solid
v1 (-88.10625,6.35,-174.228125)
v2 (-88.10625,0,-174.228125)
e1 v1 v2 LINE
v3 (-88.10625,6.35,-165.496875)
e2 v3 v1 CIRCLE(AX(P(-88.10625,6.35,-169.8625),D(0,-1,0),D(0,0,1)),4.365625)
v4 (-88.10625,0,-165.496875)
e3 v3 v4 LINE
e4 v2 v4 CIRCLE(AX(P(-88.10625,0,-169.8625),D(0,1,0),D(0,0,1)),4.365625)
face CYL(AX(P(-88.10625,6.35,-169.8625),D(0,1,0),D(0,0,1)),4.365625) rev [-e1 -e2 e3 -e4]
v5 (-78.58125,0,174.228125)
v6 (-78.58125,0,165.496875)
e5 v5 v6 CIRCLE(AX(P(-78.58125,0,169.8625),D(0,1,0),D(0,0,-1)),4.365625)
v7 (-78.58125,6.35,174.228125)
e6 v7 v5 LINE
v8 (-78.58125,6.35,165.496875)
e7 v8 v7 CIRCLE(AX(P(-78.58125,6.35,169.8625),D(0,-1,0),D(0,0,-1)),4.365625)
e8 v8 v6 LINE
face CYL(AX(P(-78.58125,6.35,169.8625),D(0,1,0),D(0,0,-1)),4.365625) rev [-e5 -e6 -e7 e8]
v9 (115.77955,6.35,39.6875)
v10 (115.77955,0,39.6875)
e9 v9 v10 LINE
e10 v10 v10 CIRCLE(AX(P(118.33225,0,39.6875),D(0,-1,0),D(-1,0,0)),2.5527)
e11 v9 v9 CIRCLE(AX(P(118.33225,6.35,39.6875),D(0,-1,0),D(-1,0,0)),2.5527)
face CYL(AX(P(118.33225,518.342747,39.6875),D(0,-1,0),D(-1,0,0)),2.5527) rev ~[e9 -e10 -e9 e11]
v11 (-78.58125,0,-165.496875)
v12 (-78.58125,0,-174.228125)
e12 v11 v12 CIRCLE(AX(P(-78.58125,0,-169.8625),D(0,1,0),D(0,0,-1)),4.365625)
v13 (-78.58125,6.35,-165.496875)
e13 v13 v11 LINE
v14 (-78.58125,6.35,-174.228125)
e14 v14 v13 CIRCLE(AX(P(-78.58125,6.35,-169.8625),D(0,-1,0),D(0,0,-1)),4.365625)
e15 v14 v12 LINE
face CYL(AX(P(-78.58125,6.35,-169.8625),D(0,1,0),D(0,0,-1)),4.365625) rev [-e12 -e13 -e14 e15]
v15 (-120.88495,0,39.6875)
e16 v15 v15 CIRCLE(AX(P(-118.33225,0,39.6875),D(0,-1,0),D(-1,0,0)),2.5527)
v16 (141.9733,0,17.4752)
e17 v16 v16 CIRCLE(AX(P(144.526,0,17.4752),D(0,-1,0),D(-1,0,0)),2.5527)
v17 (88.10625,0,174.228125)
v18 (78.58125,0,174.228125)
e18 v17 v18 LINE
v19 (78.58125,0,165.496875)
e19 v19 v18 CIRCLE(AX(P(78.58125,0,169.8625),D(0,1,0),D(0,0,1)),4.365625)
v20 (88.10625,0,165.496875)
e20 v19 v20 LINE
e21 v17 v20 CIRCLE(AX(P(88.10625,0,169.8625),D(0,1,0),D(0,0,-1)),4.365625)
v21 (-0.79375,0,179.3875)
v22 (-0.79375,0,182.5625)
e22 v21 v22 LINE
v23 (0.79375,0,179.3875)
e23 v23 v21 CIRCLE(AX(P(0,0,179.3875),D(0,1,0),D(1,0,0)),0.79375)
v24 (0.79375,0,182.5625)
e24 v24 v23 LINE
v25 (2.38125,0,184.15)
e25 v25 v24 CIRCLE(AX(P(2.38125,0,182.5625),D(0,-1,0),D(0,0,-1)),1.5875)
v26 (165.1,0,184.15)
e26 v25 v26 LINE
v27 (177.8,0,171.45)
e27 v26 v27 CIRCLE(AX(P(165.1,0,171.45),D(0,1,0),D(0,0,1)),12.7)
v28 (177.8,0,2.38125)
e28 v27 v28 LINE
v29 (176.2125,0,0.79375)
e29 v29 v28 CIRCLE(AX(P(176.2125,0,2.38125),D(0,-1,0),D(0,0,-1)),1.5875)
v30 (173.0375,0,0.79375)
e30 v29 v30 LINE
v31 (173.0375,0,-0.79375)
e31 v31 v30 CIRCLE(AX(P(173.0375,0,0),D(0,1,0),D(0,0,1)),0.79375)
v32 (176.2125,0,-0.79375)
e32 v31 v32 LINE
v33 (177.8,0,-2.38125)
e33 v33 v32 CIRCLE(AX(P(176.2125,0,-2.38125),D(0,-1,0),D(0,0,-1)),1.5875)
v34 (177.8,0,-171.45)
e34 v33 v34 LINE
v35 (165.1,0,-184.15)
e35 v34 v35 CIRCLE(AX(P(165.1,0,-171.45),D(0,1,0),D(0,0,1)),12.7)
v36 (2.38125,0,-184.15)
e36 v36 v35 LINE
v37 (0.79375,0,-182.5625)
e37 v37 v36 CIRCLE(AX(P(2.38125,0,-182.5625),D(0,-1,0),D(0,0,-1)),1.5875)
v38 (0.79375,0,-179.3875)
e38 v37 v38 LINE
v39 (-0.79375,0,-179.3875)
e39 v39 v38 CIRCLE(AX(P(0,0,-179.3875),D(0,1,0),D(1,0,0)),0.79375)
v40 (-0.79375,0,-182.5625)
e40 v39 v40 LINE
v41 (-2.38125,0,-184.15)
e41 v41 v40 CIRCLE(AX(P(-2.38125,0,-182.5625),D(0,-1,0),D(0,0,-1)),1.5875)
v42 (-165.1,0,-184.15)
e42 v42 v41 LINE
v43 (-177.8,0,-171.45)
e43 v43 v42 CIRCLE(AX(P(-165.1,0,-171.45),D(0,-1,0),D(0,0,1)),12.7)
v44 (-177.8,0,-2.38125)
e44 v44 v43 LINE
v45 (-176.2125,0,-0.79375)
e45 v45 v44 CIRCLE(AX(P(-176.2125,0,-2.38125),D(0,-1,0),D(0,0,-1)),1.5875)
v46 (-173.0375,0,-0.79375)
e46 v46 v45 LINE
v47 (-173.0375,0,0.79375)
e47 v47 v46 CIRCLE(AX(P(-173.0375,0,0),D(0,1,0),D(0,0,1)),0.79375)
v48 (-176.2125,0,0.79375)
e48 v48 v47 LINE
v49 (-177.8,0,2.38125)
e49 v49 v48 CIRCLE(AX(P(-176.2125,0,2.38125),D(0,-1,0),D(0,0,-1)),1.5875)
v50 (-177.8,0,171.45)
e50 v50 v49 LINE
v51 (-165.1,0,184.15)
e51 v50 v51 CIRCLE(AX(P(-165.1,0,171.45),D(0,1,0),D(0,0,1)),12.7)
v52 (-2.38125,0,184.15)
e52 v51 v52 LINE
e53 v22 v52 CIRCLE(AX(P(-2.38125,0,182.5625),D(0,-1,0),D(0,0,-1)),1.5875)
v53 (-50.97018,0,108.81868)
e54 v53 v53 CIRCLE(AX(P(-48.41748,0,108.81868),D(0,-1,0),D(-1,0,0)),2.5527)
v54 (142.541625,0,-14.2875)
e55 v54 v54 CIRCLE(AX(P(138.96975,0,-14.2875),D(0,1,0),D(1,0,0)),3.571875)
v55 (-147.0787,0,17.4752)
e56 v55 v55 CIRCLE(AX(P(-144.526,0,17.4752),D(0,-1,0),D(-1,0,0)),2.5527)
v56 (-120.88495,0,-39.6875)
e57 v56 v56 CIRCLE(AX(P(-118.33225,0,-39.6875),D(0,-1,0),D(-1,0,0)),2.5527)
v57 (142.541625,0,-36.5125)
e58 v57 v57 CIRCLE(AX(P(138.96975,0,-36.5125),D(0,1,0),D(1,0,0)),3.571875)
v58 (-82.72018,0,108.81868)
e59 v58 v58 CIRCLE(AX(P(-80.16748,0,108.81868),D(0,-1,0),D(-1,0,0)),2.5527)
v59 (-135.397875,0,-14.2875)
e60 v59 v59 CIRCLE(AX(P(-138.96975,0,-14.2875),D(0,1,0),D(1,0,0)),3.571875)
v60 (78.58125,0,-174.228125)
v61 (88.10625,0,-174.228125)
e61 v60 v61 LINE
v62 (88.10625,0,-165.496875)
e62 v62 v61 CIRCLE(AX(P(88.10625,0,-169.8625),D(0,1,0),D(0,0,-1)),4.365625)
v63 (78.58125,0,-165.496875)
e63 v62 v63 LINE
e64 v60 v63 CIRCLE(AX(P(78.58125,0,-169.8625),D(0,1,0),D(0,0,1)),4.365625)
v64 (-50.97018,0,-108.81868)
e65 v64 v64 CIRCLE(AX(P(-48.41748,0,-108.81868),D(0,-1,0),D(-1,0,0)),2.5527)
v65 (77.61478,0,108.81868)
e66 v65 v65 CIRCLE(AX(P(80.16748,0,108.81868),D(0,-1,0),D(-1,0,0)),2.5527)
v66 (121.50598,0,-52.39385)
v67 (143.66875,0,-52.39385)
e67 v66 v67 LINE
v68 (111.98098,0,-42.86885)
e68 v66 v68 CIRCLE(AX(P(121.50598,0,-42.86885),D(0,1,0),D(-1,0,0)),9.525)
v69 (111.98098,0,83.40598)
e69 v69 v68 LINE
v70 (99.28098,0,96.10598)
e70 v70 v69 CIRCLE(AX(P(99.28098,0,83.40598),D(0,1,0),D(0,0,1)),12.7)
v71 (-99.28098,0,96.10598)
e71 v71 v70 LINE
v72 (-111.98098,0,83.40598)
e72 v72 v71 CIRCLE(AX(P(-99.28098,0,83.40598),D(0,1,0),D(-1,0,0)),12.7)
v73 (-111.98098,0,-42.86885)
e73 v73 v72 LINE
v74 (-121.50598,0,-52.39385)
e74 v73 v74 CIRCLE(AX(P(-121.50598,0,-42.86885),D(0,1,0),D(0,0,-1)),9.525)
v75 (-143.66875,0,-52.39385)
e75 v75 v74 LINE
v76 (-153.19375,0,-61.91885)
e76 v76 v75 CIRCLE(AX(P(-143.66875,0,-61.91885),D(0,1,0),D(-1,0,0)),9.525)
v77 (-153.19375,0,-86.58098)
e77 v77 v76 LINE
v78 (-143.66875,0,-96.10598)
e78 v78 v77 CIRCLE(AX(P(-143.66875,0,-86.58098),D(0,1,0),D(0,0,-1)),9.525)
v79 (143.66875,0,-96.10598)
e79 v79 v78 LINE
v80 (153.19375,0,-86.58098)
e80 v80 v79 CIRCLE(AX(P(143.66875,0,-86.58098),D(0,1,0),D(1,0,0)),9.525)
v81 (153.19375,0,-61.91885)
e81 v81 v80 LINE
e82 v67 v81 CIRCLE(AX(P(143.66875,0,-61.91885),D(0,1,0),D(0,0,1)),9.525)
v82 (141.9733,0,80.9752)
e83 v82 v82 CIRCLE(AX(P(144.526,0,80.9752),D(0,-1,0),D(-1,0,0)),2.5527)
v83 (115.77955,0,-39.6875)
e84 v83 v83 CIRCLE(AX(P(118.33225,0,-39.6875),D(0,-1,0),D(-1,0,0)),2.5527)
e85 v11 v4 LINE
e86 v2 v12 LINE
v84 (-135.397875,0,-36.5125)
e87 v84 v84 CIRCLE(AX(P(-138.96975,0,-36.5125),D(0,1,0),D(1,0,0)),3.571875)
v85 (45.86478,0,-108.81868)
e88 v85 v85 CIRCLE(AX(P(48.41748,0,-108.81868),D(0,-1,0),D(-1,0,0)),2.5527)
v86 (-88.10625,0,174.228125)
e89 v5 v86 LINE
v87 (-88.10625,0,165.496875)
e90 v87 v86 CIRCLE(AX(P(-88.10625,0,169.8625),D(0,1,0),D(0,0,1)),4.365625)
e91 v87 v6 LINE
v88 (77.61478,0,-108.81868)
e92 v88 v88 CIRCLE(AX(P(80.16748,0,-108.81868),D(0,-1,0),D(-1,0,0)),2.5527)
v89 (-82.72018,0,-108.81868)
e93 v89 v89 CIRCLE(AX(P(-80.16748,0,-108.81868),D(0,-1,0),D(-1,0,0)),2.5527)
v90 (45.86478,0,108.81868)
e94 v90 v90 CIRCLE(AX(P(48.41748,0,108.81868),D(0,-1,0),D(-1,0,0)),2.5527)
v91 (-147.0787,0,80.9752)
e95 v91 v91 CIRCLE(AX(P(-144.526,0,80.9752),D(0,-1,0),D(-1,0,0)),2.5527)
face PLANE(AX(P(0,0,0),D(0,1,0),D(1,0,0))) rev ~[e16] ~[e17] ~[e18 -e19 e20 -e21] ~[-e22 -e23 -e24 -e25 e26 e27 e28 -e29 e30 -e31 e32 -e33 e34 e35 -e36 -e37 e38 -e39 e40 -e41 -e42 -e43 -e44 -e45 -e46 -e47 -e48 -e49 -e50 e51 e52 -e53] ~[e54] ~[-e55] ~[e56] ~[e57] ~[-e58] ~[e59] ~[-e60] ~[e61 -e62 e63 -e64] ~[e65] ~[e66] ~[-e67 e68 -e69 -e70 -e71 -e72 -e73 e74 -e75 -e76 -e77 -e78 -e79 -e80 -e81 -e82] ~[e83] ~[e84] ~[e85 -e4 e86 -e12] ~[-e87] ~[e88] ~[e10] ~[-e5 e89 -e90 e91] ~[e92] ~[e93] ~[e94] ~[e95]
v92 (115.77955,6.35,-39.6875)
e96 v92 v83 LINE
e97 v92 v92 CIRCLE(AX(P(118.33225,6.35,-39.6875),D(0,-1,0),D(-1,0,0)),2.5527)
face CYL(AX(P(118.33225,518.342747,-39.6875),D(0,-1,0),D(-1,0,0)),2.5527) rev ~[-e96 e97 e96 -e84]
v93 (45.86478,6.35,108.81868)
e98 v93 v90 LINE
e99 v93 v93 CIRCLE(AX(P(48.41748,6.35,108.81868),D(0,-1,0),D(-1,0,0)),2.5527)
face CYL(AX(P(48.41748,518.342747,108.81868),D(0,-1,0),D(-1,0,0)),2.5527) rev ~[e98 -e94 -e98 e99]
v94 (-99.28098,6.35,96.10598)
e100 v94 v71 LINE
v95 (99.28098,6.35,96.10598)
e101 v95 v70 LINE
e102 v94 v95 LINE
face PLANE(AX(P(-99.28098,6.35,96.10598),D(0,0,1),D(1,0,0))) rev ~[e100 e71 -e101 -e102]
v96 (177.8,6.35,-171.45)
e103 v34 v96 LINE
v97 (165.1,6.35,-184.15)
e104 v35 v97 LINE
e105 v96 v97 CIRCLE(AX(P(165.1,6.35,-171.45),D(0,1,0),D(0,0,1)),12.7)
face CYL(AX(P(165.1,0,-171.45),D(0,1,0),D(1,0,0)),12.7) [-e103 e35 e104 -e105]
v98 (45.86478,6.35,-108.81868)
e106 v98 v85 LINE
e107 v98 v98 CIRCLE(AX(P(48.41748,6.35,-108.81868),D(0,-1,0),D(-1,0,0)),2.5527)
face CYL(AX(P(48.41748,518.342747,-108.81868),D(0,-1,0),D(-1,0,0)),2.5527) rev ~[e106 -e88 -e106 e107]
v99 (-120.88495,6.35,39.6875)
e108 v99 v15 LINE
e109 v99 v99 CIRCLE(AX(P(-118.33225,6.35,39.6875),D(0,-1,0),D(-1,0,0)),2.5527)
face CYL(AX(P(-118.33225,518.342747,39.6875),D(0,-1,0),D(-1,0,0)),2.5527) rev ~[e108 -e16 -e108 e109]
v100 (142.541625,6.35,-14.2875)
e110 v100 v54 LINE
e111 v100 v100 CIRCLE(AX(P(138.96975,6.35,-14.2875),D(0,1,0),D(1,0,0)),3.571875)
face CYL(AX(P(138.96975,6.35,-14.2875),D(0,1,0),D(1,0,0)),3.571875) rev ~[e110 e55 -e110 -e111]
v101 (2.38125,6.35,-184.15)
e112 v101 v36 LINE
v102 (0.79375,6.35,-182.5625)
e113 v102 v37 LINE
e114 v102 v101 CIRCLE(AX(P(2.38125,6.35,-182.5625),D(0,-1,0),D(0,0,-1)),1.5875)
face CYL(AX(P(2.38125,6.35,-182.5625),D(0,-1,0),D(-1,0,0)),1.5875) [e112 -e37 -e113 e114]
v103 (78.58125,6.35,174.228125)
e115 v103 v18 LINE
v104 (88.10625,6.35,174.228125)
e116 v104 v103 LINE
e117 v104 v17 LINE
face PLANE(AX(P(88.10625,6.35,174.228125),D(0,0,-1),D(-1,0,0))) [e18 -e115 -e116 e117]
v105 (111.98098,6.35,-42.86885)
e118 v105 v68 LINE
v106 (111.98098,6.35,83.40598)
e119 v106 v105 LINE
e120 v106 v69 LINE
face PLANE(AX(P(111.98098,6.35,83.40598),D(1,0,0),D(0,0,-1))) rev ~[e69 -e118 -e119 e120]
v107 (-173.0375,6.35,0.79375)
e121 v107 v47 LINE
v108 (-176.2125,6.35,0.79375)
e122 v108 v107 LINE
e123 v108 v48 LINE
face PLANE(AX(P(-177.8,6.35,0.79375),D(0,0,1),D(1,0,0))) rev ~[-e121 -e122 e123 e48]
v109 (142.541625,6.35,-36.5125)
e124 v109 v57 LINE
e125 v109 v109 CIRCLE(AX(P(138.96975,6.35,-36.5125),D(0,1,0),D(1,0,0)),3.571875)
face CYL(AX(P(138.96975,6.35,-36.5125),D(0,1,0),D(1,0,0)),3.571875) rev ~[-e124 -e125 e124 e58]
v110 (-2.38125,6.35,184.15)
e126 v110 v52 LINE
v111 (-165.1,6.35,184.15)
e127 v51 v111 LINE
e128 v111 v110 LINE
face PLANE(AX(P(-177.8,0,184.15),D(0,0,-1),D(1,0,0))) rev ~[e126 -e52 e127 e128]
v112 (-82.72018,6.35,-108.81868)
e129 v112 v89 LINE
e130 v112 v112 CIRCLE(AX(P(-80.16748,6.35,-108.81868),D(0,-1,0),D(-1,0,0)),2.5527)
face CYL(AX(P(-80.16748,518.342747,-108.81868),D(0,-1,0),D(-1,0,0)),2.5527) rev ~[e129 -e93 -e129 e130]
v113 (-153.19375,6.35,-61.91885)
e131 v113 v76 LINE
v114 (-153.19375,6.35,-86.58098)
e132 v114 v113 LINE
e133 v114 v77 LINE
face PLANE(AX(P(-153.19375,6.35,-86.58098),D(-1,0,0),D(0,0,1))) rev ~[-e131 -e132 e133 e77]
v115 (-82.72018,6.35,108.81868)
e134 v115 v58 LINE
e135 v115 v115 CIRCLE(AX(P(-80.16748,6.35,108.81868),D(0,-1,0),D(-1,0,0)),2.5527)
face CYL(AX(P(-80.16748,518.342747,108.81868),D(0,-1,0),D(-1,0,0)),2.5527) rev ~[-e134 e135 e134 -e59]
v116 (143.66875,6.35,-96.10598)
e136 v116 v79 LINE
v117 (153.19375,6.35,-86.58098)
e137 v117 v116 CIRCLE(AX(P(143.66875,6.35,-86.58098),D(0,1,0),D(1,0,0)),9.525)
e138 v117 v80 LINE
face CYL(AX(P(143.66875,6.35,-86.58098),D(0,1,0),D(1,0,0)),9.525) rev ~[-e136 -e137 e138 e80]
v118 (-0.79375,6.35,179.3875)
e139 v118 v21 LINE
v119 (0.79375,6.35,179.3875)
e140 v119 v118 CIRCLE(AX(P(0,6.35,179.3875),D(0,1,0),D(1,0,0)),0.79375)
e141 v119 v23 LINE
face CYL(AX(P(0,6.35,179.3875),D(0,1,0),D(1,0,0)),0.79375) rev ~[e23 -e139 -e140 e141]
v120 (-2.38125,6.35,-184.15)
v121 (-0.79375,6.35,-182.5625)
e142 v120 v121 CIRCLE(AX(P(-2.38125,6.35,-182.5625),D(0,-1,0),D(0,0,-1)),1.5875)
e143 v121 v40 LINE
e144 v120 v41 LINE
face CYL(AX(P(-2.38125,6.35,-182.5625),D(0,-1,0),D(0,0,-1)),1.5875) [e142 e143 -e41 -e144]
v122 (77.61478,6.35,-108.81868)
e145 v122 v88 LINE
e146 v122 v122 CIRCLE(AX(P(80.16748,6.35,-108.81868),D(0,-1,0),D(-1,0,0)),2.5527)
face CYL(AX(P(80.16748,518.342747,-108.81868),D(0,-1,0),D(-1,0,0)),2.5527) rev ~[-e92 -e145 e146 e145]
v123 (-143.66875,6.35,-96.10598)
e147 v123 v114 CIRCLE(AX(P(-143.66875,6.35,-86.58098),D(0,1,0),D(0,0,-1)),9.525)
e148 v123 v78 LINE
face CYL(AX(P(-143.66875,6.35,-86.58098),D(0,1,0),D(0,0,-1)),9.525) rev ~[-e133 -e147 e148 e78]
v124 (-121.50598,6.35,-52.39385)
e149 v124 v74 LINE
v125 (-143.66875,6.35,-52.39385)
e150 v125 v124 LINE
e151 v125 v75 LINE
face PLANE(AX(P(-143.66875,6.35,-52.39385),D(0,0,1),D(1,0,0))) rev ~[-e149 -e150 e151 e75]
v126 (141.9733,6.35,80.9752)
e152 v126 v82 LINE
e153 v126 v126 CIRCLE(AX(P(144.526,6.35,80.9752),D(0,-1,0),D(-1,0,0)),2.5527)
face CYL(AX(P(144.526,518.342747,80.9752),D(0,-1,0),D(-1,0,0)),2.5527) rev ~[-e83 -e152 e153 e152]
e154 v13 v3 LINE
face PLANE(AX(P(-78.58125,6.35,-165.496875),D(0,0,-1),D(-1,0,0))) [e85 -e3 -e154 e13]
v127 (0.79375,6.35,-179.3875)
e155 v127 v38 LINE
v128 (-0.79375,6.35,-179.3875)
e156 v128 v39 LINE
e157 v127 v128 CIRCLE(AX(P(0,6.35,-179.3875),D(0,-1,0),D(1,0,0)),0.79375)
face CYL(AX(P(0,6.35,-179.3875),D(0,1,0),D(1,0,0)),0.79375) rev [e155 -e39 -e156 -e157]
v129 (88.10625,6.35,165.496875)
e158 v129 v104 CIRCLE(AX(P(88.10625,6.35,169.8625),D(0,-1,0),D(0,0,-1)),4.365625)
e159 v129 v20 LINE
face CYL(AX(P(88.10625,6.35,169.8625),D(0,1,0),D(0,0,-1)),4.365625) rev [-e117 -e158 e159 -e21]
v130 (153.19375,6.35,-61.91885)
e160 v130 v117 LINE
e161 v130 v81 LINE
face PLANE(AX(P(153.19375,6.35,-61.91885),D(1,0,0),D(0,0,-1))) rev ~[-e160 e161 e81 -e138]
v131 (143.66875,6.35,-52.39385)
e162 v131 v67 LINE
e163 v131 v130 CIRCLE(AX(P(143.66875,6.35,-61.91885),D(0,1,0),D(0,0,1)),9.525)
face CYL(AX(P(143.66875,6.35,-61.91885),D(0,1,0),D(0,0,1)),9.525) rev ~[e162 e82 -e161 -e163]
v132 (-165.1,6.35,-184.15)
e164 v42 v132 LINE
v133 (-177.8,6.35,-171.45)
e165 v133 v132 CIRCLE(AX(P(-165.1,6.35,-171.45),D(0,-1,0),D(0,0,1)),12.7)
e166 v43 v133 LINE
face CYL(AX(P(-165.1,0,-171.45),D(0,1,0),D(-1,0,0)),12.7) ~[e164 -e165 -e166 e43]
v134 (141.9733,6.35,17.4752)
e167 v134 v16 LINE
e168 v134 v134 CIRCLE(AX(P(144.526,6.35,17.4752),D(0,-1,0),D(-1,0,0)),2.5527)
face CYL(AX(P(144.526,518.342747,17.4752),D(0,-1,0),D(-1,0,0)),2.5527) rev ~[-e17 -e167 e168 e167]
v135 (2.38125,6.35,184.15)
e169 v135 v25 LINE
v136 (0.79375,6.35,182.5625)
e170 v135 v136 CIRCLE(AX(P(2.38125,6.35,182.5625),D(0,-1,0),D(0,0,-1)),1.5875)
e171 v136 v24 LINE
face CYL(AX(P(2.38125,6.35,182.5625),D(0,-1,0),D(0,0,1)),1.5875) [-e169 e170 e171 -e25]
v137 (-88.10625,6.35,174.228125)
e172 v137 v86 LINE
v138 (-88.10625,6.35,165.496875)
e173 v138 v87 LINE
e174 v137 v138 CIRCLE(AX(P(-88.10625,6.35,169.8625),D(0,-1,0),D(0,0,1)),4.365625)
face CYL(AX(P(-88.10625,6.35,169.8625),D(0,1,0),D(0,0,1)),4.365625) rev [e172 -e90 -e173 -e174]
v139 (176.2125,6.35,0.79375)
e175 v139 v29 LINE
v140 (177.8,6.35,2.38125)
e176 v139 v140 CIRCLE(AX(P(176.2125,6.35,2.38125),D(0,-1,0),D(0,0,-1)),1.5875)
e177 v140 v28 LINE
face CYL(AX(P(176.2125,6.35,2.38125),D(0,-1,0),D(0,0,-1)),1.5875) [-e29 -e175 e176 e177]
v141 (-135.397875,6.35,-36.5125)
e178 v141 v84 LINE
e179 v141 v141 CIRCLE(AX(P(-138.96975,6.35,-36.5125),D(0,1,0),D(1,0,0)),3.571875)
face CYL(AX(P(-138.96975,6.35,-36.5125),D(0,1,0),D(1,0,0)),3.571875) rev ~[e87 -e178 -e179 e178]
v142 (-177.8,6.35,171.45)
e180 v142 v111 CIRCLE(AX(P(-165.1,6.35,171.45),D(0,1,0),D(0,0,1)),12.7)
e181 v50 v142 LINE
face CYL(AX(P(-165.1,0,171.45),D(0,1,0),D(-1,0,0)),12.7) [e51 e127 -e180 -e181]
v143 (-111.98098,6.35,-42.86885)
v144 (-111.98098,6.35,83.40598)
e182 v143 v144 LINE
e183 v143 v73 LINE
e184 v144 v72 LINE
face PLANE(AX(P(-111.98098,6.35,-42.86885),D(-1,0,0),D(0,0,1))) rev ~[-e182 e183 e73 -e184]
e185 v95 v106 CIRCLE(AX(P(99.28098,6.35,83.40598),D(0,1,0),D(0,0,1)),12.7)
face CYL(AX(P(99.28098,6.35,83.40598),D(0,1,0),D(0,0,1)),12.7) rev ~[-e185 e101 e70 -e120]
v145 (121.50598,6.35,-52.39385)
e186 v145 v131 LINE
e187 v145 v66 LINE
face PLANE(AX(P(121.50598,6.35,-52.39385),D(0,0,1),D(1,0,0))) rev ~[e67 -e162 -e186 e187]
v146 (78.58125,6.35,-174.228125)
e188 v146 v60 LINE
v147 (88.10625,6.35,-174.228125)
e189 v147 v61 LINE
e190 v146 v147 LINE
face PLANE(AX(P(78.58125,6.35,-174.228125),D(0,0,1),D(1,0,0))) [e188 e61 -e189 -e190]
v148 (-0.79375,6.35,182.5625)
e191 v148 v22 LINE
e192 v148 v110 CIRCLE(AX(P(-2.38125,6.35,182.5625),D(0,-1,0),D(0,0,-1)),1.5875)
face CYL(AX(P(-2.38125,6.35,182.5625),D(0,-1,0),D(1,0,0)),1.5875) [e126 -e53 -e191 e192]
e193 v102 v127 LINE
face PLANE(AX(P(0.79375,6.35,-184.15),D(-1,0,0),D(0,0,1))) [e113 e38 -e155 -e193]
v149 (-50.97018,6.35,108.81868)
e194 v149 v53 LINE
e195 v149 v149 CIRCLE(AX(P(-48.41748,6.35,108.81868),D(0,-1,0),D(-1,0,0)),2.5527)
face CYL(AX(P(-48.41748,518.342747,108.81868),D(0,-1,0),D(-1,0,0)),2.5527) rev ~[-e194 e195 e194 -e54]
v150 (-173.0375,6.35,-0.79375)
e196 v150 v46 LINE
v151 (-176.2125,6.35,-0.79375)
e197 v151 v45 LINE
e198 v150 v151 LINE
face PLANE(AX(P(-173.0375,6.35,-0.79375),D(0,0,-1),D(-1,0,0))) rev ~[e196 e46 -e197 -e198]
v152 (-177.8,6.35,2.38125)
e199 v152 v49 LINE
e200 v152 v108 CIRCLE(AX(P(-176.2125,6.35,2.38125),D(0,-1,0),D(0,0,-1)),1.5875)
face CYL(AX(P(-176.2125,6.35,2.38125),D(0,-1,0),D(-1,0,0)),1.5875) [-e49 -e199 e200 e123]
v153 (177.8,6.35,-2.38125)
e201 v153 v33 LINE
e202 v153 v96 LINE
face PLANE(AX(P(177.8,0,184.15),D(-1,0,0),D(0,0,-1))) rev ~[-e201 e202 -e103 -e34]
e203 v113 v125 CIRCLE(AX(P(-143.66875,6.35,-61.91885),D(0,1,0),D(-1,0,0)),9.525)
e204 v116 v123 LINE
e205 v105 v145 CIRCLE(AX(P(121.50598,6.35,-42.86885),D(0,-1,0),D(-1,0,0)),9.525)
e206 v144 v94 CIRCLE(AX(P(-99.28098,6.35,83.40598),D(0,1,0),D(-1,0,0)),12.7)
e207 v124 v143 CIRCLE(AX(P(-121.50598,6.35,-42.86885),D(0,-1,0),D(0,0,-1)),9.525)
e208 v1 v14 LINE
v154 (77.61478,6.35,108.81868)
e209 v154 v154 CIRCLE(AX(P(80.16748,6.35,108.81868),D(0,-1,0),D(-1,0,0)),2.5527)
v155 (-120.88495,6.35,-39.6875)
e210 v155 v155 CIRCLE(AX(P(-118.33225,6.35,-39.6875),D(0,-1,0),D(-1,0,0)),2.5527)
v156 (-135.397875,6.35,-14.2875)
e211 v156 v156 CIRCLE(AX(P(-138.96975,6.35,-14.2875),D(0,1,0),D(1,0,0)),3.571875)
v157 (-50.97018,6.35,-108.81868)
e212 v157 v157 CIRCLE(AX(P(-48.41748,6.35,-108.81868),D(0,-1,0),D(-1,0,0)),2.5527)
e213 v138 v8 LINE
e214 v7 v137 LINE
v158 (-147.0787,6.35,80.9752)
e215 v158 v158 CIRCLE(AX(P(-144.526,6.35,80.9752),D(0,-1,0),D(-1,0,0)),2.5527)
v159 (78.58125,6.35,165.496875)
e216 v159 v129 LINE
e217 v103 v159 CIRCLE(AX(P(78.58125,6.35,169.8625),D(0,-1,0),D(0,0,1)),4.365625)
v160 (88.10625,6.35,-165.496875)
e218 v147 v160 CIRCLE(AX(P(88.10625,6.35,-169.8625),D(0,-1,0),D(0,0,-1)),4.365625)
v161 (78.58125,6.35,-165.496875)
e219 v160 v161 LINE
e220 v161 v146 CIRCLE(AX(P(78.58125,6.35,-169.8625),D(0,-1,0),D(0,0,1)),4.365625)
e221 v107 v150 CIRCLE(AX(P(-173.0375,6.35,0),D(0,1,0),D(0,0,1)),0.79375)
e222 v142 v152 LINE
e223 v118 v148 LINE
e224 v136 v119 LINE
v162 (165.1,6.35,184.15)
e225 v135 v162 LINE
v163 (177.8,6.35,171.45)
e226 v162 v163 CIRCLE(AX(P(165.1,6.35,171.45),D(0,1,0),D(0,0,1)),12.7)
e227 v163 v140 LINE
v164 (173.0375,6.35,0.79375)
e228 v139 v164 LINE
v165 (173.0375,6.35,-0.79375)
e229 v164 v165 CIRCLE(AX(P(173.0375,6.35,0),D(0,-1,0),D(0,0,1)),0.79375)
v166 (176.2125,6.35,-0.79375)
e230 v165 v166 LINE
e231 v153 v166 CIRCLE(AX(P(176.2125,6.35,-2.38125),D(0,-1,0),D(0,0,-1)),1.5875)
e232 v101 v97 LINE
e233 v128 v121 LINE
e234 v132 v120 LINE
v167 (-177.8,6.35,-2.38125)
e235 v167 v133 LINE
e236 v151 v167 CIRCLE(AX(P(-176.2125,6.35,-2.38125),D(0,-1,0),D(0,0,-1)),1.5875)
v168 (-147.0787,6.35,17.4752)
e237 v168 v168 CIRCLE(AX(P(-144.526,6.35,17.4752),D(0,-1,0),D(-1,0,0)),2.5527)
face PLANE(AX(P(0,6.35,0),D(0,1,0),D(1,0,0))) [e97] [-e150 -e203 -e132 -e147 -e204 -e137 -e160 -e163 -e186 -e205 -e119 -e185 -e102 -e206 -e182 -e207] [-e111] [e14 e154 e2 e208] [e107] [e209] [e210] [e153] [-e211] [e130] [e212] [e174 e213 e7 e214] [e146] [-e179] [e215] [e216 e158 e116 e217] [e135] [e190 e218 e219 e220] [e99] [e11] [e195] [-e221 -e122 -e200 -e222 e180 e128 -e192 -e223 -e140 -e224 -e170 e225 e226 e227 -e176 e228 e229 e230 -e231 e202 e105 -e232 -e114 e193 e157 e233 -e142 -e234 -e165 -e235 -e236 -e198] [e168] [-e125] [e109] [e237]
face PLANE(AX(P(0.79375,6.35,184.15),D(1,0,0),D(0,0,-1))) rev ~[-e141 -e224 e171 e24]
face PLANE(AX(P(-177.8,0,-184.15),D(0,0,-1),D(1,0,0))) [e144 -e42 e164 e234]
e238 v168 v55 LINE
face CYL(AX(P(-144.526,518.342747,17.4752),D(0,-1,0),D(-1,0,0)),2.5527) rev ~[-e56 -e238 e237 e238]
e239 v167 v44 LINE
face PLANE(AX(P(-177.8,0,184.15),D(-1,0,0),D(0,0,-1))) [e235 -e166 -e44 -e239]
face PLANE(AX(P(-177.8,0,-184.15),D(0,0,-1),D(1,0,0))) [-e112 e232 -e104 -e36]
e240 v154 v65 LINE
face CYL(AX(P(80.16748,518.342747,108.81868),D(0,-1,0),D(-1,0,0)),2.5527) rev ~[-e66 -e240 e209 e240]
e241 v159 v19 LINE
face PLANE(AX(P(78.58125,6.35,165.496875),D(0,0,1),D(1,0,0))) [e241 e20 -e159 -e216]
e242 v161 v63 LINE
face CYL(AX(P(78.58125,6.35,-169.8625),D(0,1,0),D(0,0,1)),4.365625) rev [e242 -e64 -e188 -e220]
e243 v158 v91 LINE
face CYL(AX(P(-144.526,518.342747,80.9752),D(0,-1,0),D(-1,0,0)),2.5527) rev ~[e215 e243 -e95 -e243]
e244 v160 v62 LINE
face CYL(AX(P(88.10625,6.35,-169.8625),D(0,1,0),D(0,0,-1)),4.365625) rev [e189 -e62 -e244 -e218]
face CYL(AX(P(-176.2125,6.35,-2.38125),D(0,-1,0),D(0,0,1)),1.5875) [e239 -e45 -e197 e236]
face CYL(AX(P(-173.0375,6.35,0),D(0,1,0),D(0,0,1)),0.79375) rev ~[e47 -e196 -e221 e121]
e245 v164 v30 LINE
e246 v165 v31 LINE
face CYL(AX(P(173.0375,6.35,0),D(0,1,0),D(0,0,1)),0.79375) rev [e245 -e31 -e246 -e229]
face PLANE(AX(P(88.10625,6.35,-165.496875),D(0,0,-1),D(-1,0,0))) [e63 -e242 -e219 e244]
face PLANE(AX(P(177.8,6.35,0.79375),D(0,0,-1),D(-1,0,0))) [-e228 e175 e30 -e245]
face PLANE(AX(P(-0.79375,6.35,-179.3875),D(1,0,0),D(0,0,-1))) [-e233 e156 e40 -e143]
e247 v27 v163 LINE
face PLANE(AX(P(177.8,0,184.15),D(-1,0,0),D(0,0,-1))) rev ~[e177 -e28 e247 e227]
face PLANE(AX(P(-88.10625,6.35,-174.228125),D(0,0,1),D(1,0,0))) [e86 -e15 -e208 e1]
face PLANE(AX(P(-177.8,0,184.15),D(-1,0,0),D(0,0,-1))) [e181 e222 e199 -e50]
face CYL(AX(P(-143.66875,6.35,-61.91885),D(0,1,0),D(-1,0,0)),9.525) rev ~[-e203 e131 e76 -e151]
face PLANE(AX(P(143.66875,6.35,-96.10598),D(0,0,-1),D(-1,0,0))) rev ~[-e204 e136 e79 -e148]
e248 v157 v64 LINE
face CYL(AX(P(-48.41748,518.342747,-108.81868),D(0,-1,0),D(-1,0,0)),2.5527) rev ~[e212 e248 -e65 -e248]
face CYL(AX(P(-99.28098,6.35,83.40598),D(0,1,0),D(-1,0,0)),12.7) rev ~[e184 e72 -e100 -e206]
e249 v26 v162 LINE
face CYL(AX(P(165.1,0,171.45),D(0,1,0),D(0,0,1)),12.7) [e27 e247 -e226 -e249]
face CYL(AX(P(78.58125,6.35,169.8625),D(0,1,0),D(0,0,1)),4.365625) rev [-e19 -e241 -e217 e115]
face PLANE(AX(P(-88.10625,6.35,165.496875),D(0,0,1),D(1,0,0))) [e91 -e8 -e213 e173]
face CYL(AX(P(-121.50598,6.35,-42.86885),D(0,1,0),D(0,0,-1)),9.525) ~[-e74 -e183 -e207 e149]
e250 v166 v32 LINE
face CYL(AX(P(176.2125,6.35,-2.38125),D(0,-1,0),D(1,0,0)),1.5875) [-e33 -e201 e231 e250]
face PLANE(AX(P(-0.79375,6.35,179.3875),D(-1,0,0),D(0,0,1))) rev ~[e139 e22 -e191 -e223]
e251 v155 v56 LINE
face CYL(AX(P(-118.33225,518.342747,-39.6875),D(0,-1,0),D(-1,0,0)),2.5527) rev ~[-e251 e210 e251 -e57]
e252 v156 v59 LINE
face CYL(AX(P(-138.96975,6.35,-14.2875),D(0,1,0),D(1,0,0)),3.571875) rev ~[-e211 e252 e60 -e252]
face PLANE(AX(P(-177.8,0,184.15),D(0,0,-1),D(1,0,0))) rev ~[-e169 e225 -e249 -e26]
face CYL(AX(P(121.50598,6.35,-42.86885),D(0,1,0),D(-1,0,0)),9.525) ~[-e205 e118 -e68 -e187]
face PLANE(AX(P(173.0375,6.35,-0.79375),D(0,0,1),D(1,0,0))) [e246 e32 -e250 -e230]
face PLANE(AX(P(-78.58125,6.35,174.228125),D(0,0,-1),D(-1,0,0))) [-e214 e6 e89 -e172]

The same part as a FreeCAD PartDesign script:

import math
import FreeCAD as App
import Part
import Sketcher
Q = App.Units.Quantity


def edges_at(feature, points):
    """Names of the edges that pass closest to the given points."""
    edges = feature.Shape.Edges
    near = lambda p: min(range(len(edges)), key=lambda i: edges[i].distToShape(Part.Vertex(*p))[0])
    return sorted({f"Edge{near(p) + 1}" for p in points})


def add_polygon(sketch, points):
    """Adds a closed chain of lines whose ends are joined by coincident constraints."""
    first, n = sketch.GeometryCount, len(points)
    for a, b in zip(points, points[1:] + points[:1]):
        sketch.addGeometry(Part.LineSegment(App.Vector(*a, 0), App.Vector(*b, 0)), False)
    for i in range(n):
        sketch.addConstraint(Sketcher.Constraint("Coincident", first + i, 2, first + (i + 1) % n, 1))

doc = App.newDocument("Part")
body = doc.addObject("PartDesign::Body", "Body")

sketch1 = doc.addObject("Sketcher::SketchObject", "Sketch")
body.addObject(sketch1)
sketch1.AttachmentSupport = (doc.XZ_Plane, [""])
sketch1.MapMode = "FlatFace"
add_polygon(sketch1, [(-177.8, -184.15), (-177.8, 184.15), (177.8, 184.15), (177.8, -184.15)])
sketch1.addConstraint([
    Sketcher.Constraint("Vertical", 0),
    Sketcher.Constraint("Horizontal", 1),
    Sketcher.Constraint("Vertical", 2),
    Sketcher.Constraint("Horizontal", 3),
    Sketcher.Constraint("Symmetric", 0, 2, 2, 2, -1, 1),
    Sketcher.Constraint("DistanceX", 1, 1, 1, 2, Q("14 in")),
    Sketcher.Constraint("DistanceY", 0, 1, 0, 2, Q("14.5 in")),
])
pad1 = doc.addObject("PartDesign::Pad", "Pad")
body.addObject(pad1)
pad1.Profile = sketch1
pad1.Length = Q("0.25 in")
pad1.Reversed = True
doc.recompute()

fillet = doc.addObject("PartDesign::Fillet", "Fillet")
body.addObject(fillet)
fillet.Base = (pad1, edges_at(pad1, [
    (177.8, 3.175, 184.15),
    (-177.8, 3.175, 184.15),
    (-177.8, 3.175, -184.15),
    (177.8, 3.175, -184.15),
]))
fillet.Radius = Q("0.5 in")

sketch2 = doc.addObject("Sketcher::SketchObject", "Sketch001")
body.addObject(sketch2)
sketch2.AttachmentSupport = (doc.XZ_Plane, [""])
sketch2.MapMode = "FlatFace"
sketch2.AttachmentOffset = App.Placement(App.Vector(0, 0, -0.25 * 25.4), App.Rotation())
sketch2.addGeometry([
    Part.LineSegment(App.Vector(-78.58125, -174.228125, 0), App.Vector(-88.10625, -174.228125, 0)),
    Part.ArcOfCircle(Part.Circle(App.Vector(-88.10625, -169.8625, 0), App.Vector(0, 0, 1), 4.365625), math.radians(90), math.radians(270)),
    Part.LineSegment(App.Vector(-88.10625, -165.496875, 0), App.Vector(-78.58125, -165.496875, 0)),
    Part.ArcOfCircle(Part.Circle(App.Vector(-78.58125, -169.8625, 0), App.Vector(0, 0, 1), 4.365625), math.radians(-90), math.radians(90)),
    Part.LineSegment(App.Vector(78.58125, -165.496875, 0), App.Vector(88.10625, -165.496875, 0)),
    Part.ArcOfCircle(Part.Circle(App.Vector(88.10625, -169.8625, 0), App.Vector(0, 0, 1), 4.365625), math.radians(-90), math.radians(90)),
    Part.LineSegment(App.Vector(88.10625, -174.228125, 0), App.Vector(78.58125, -174.228125, 0)),
    Part.ArcOfCircle(Part.Circle(App.Vector(78.58125, -169.8625, 0), App.Vector(0, 0, 1), 4.365625), math.radians(90), math.radians(270)),
    Part.LineSegment(App.Vector(-78.58125, 165.496875, 0), App.Vector(-88.10625, 165.496875, 0)),
    Part.ArcOfCircle(Part.Circle(App.Vector(-88.10625, 169.8625, 0), App.Vector(0, 0, 1), 4.365625), math.radians(90), math.radians(270)),
    Part.LineSegment(App.Vector(-88.10625, 174.228125, 0), App.Vector(-78.58125, 174.228125, 0)),
    Part.ArcOfCircle(Part.Circle(App.Vector(-78.58125, 169.8625, 0), App.Vector(0, 0, 1), 4.365625), math.radians(-90), math.radians(90)),
    Part.LineSegment(App.Vector(88.10625, 165.496875, 0), App.Vector(78.58125, 165.496875, 0)),
    Part.ArcOfCircle(Part.Circle(App.Vector(78.58125, 169.8625, 0), App.Vector(0, 0, 1), 4.365625), math.radians(90), math.radians(270)),
    Part.LineSegment(App.Vector(78.58125, 174.228125, 0), App.Vector(88.10625, 174.228125, 0)),
    Part.ArcOfCircle(Part.Circle(App.Vector(88.10625, 169.8625, 0), App.Vector(0, 0, 1), 4.365625), math.radians(-90), math.radians(90)),
], False)
sketch2.addConstraint([
    Sketcher.Constraint("Tangent", 0, 2, 1, 2),
    Sketcher.Constraint("Tangent", 1, 1, 2, 1),
    Sketcher.Constraint("Tangent", 2, 2, 3, 2),
    Sketcher.Constraint("Tangent", 3, 1, 0, 1),
    Sketcher.Constraint("Tangent", 4, 2, 5, 2),
    Sketcher.Constraint("Tangent", 5, 1, 6, 1),
    Sketcher.Constraint("Tangent", 6, 2, 7, 2),
    Sketcher.Constraint("Tangent", 7, 1, 4, 1),
    Sketcher.Constraint("Tangent", 8, 2, 9, 2),
    Sketcher.Constraint("Tangent", 9, 1, 10, 1),
    Sketcher.Constraint("Tangent", 10, 2, 11, 2),
    Sketcher.Constraint("Tangent", 11, 1, 8, 1),
    Sketcher.Constraint("Tangent", 12, 2, 13, 2),
    Sketcher.Constraint("Tangent", 13, 1, 14, 1),
    Sketcher.Constraint("Tangent", 14, 2, 15, 2),
    Sketcher.Constraint("Tangent", 15, 1, 12, 1),
    Sketcher.Constraint("Horizontal", 0),
    Sketcher.Constraint("Horizontal", 2),
    Sketcher.Constraint("Horizontal", 4),
    Sketcher.Constraint("Horizontal", 6),
    Sketcher.Constraint("Horizontal", 8),
    Sketcher.Constraint("Horizontal", 10),
    Sketcher.Constraint("Horizontal", 12),
    Sketcher.Constraint("Horizontal", 14),
    Sketcher.Constraint("Equal", 3, 5),
    Sketcher.Constraint("Equal", 7, 9),
    Sketcher.Constraint("Equal", 11, 13),
    Sketcher.Constraint("Symmetric", 5, 3, 9, 3, -1, 1),
    Sketcher.Constraint("Symmetric", 3, 3, 13, 3, -1, 1),
    Sketcher.Constraint("Symmetric", 1, 3, 5, 3, -2),
    Sketcher.Constraint("Vertical", 3, 3, 11, 3),
    Sketcher.Constraint("Vertical", 7, 3, 13, 3),
    Sketcher.Constraint("Vertical", 5, 3, 15, 3),
    Sketcher.Constraint("Radius", 1, Q("0.171875 in")),
    Sketcher.Constraint("DistanceX", 0, 2, 0, 1, Q("0.375 in")),
    Sketcher.Constraint("DistanceX", 1, 3, -1, 1, Q("3.46875 in")),
    Sketcher.Constraint("DistanceY", 1, 3, -1, 1, Q("6.6875 in")),
])
pocket1 = doc.addObject("PartDesign::Pocket", "Pocket")
body.addObject(pocket1)
pocket1.Profile = sketch2
pocket1.Type = "ThroughAll"
pocket1.Reversed = True

sketch3 = doc.addObject("Sketcher::SketchObject", "Sketch002")
body.addObject(sketch3)
sketch3.AttachmentSupport = (doc.XZ_Plane, [""])
sketch3.MapMode = "FlatFace"
sketch3.AttachmentOffset = App.Placement(App.Vector(0, 0, -0.25 * 25.4), App.Rotation())
sketch3.addGeometry([
    Part.LineSegment(App.Vector(-99.28098, 96.10598, 0), App.Vector(99.28098, 96.10598, 0)),
    Part.ArcOfCircle(Part.Circle(App.Vector(99.28098, 83.40598, 0), App.Vector(0, 0, 1), 12.7), math.radians(0), math.radians(90)),
    Part.LineSegment(App.Vector(111.98098, 83.40598, 0), App.Vector(111.98098, -42.86885, 0)),
    Part.ArcOfCircle(Part.Circle(App.Vector(121.50598, -42.86885, 0), App.Vector(0, 0, 1), 9.525), math.radians(180), math.radians(270)),
    Part.LineSegment(App.Vector(121.50598, -52.39385, 0), App.Vector(143.66875, -52.39385, 0)),
    Part.ArcOfCircle(Part.Circle(App.Vector(143.66875, -61.91885, 0), App.Vector(0, 0, 1), 9.525), math.radians(0), math.radians(90)),
    Part.LineSegment(App.Vector(153.19375, -61.91885, 0), App.Vector(153.19375, -86.58098, 0)),
    Part.ArcOfCircle(Part.Circle(App.Vector(143.66875, -86.58098, 0), App.Vector(0, 0, 1), 9.525), math.radians(-90), math.radians(0)),
    Part.LineSegment(App.Vector(143.66875, -96.10598, 0), App.Vector(-143.66875, -96.10598, 0)),
    Part.ArcOfCircle(Part.Circle(App.Vector(-143.66875, -86.58098, 0), App.Vector(0, 0, 1), 9.525), math.radians(180), math.radians(270)),
    Part.LineSegment(App.Vector(-153.19375, -86.58098, 0), App.Vector(-153.19375, -61.91885, 0)),
    Part.ArcOfCircle(Part.Circle(App.Vector(-143.66875, -61.91885, 0), App.Vector(0, 0, 1), 9.525), math.radians(90), math.radians(180)),
    Part.LineSegment(App.Vector(-143.66875, -52.39385, 0), App.Vector(-121.50598, -52.39385, 0)),
    Part.ArcOfCircle(Part.Circle(App.Vector(-121.50598, -42.86885, 0), App.Vector(0, 0, 1), 9.525), math.radians(-90), math.radians(0)),
    Part.LineSegment(App.Vector(-111.98098, -42.86885, 0), App.Vector(-111.98098, 83.40598, 0)),
    Part.ArcOfCircle(Part.Circle(App.Vector(-99.28098, 83.40598, 0), App.Vector(0, 0, 1), 12.7), math.radians(90), math.radians(180)),
], False)
sketch3.addConstraint([
    Sketcher.Constraint("Tangent", 0, 2, 1, 2),
    Sketcher.Constraint("Tangent", 1, 1, 2, 1),
    Sketcher.Constraint("Tangent", 2, 2, 3, 1),
    Sketcher.Constraint("Tangent", 3, 2, 4, 1),
    Sketcher.Constraint("Tangent", 4, 2, 5, 2),
    Sketcher.Constraint("Tangent", 5, 1, 6, 1),
    Sketcher.Constraint("Tangent", 6, 2, 7, 2),
    Sketcher.Constraint("Tangent", 7, 1, 8, 1),
    Sketcher.Constraint("Tangent", 8, 2, 9, 2),
    Sketcher.Constraint("Tangent", 9, 1, 10, 1),
    Sketcher.Constraint("Tangent", 10, 2, 11, 2),
    Sketcher.Constraint("Tangent", 11, 1, 12, 1),
    Sketcher.Constraint("Tangent", 12, 2, 13, 1),
    Sketcher.Constraint("Tangent", 13, 2, 14, 1),
    Sketcher.Constraint("Tangent", 14, 2, 15, 2),
    Sketcher.Constraint("Tangent", 15, 1, 0, 1),
    Sketcher.Constraint("Horizontal", 0),
    Sketcher.Constraint("Vertical", 2),
    Sketcher.Constraint("Horizontal", 4),
    Sketcher.Constraint("Vertical", 6),
    Sketcher.Constraint("Horizontal", 8),
    Sketcher.Constraint("Vertical", 10),
    Sketcher.Constraint("Horizontal", 12),
    Sketcher.Constraint("Vertical", 14),
    Sketcher.Constraint("Equal", 3, 5),
    Sketcher.Constraint("Equal", 5, 7),
    Sketcher.Constraint("Equal", 7, 9),
    Sketcher.Constraint("Equal", 9, 11),
    Sketcher.Constraint("Equal", 11, 13),
    Sketcher.Constraint("Equal", 1, 15),
    Sketcher.Constraint("Symmetric", 5, 3, 11, 3, -2),
    Sketcher.Constraint("Equal", 4, 12),
    Sketcher.Constraint("Radius", 1, Q("0.5 in")),
    Sketcher.Constraint("Radius", 3, Q("0.375 in")),
    Sketcher.Constraint("DistanceX", 8, 2, 8, 1, Q("11.3125 in")),
    Sketcher.Constraint("DistanceX", 0, 1, 0, 2, Q("7.8174 in")),
    Sketcher.Constraint("DistanceY", -1, 1, 1, 3, Q("3.2837 in")),
    Sketcher.Constraint("DistanceY", 7, 3, -1, 1, Q("3.4087 in")),
    Sketcher.Constraint("DistanceY", 2, 2, 2, 1, 126.27483),
])
pocket2 = doc.addObject("PartDesign::Pocket", "Pocket001")
body.addObject(pocket2)
pocket2.Profile = sketch3
pocket2.Type = "ThroughAll"
pocket2.Reversed = True

sketch4 = doc.addObject("Sketcher::SketchObject", "Sketch003")
body.addObject(sketch4)
sketch4.AttachmentSupport = (doc.XZ_Plane, [""])
sketch4.MapMode = "FlatFace"
sketch4.AttachmentOffset = App.Placement(App.Vector(0, 0, -0.25 * 25.4), App.Rotation())
sketch4.addGeometry([
    Part.Circle(App.Vector(-80.16748, 108.81868, 0), App.Vector(0, 0, 1), 2.5527),
    Part.Circle(App.Vector(-48.41748, 108.81868, 0), App.Vector(0, 0, 1), 2.5527),
    Part.Circle(App.Vector(48.41748, 108.81868, 0), App.Vector(0, 0, 1), 2.5527),
    Part.Circle(App.Vector(80.16748, 108.81868, 0), App.Vector(0, 0, 1), 2.5527),
    Part.Circle(App.Vector(80.16748, -108.81868, 0), App.Vector(0, 0, 1), 2.5527),
    Part.Circle(App.Vector(48.41748, -108.81868, 0), App.Vector(0, 0, 1), 2.5527),
    Part.Circle(App.Vector(-48.41748, -108.81868, 0), App.Vector(0, 0, 1), 2.5527),
    Part.Circle(App.Vector(-80.16748, -108.81868, 0), App.Vector(0, 0, 1), 2.5527),
], False)
sketch4.addConstraint([
    Sketcher.Constraint("Equal", 0, 1),
    Sketcher.Constraint("Equal", 1, 2),
    Sketcher.Constraint("Equal", 2, 3),
    Sketcher.Constraint("Equal", 3, 4),
    Sketcher.Constraint("Equal", 4, 5),
    Sketcher.Constraint("Equal", 5, 6),
    Sketcher.Constraint("Equal", 6, 7),
    Sketcher.Constraint("Symmetric", 0, 3, 4, 3, -1, 1),
    Sketcher.Constraint("Symmetric", 1, 3, 5, 3, -1, 1),
    Sketcher.Constraint("Symmetric", 2, 3, 6, 3, -1, 1),
    Sketcher.Constraint("Symmetric", 3, 3, 7, 3, -1, 1),
    Sketcher.Constraint("Symmetric", 1, 3, 2, 3, -2),
    Sketcher.Constraint("Symmetric", 0, 3, 3, 3, -2),
    Sketcher.Constraint("Horizontal", 0, 3, 1, 3),
    Sketcher.Constraint("Diameter", 0, Q("0.201 in")),
    Sketcher.Constraint("DistanceX", 0, 3, 1, 3, Q("1.25 in")),
    Sketcher.Constraint("DistanceX", 0, 3, -1, 1, Q("3.1562 in")),
    Sketcher.Constraint("DistanceY", -1, 1, 0, 3, Q("4.2842 in")),
])
doc.recompute()
hole = doc.addObject("PartDesign::Hole", "Hole")
body.addObject(hole)
hole.Profile = sketch4
hole.ThreadType = "None"
hole.Diameter = Q("0.201 in")
hole.DepthType = "ThroughAll"
hole.Reversed = True

sketch5 = doc.addObject("Sketcher::SketchObject", "Sketch004")
body.addObject(sketch5)
sketch5.AttachmentSupport = (doc.XZ_Plane, [""])
sketch5.MapMode = "FlatFace"
sketch5.AttachmentOffset = App.Placement(App.Vector(0, 0, -0.25 * 25.4), App.Rotation())
sketch5.addGeometry([
    Part.LineSegment(App.Vector(-0.79375, 179.3875, 0), App.Vector(-0.79375, 184.15, 0)),
    Part.LineSegment(App.Vector(-0.79375, 184.15, 0), App.Vector(0.79375, 184.15, 0)),
    Part.LineSegment(App.Vector(0.79375, 184.15, 0), App.Vector(0.79375, 179.3875, 0)),
    Part.ArcOfCircle(Part.Circle(App.Vector(0, 179.3875, 0), App.Vector(0, 0, 1), 0.79375), math.radians(180), math.radians(360)),
    Part.LineSegment(App.Vector(-173.0375, -0.79375, 0), App.Vector(-177.8, -0.79375, 0)),
    Part.LineSegment(App.Vector(-177.8, -0.79375, 0), App.Vector(-177.8, 0.79375, 0)),
    Part.LineSegment(App.Vector(-177.8, 0.79375, 0), App.Vector(-173.0375, 0.79375, 0)),
    Part.ArcOfCircle(Part.Circle(App.Vector(-173.0375, 0, 0), App.Vector(0, 0, 1), 0.79375), math.radians(-90), math.radians(90)),
    Part.LineSegment(App.Vector(177.8, -0.79375, 0), App.Vector(173.0375, -0.79375, 0)),
    Part.ArcOfCircle(Part.Circle(App.Vector(173.0375, 0, 0), App.Vector(0, 0, 1), 0.79375), math.radians(90), math.radians(270)),
    Part.LineSegment(App.Vector(173.0375, 0.79375, 0), App.Vector(177.8, 0.79375, 0)),
    Part.LineSegment(App.Vector(177.8, 0.79375, 0), App.Vector(177.8, -0.79375, 0)),
    Part.LineSegment(App.Vector(-0.79375, -184.15, 0), App.Vector(-0.79375, -179.3875, 0)),
    Part.ArcOfCircle(Part.Circle(App.Vector(0, -179.3875, 0), App.Vector(0, 0, 1), 0.79375), math.radians(0), math.radians(180)),
    Part.LineSegment(App.Vector(0.79375, -179.3875, 0), App.Vector(0.79375, -184.15, 0)),
    Part.LineSegment(App.Vector(0.79375, -184.15, 0), App.Vector(-0.79375, -184.15, 0)),
], False)
sketch5.addConstraint([
    Sketcher.Constraint("Coincident", 0, 2, 1, 1),
    Sketcher.Constraint("Coincident", 1, 2, 2, 1),
    Sketcher.Constraint("Tangent", 2, 2, 3, 2),
    Sketcher.Constraint("Tangent", 3, 1, 0, 1),
    Sketcher.Constraint("Coincident", 4, 2, 5, 1),
    Sketcher.Constraint("Coincident", 5, 2, 6, 1),
    Sketcher.Constraint("Tangent", 6, 2, 7, 2),
    Sketcher.Constraint("Tangent", 7, 1, 4, 1),
    Sketcher.Constraint("Tangent", 8, 2, 9, 2),
    Sketcher.Constraint("Tangent", 9, 1, 10, 1),
    Sketcher.Constraint("Coincident", 10, 2, 11, 1),
    Sketcher.Constraint("Coincident", 11, 2, 8, 1),
    Sketcher.Constraint("Tangent", 12, 2, 13, 2),
    Sketcher.Constraint("Tangent", 13, 1, 14, 1),
    Sketcher.Constraint("Coincident", 14, 2, 15, 1),
    Sketcher.Constraint("Coincident", 15, 2, 12, 1),
    Sketcher.Constraint("Vertical", 0),
    Sketcher.Constraint("Horizontal", 1),
    Sketcher.Constraint("Vertical", 2),
    Sketcher.Constraint("Horizontal", 4),
    Sketcher.Constraint("Vertical", 5),
    Sketcher.Constraint("Horizontal", 6),
    Sketcher.Constraint("Horizontal", 8),
    Sketcher.Constraint("Horizontal", 10),
    Sketcher.Constraint("Vertical", 11),
    Sketcher.Constraint("Vertical", 12),
    Sketcher.Constraint("Vertical", 14),
    Sketcher.Constraint("Horizontal", 15),
    Sketcher.Constraint("Equal", 3, 7),
    Sketcher.Constraint("Equal", 7, 9),
    Sketcher.Constraint("Equal", 9, 13),
    Sketcher.Constraint("Symmetric", 7, 3, 9, 3, -1, 1),
    Sketcher.Constraint("Symmetric", 3, 3, 13, 3, -1, 1),
    Sketcher.Constraint("Symmetric", 5, 2, 10, 2, -2),
    Sketcher.Constraint("Symmetric", 1, 2, 14, 2, -1),
    Sketcher.Constraint("Equal", 10, 0),
    Sketcher.Constraint("DistanceX", 4, 2, -1, 1, Q("7 in")),
    Sketcher.Constraint("Radius", 3, Q("0.03125 in")),
    Sketcher.Constraint("DistanceX", 4, 2, 4, 1, Q("0.1875 in")),
    Sketcher.Constraint("DistanceY", -1, 1, 0, 2, Q("7.25 in")),
])
pocket3 = doc.addObject("PartDesign::Pocket", "Pocket002")
body.addObject(pocket3)
pocket3.Profile = sketch5
pocket3.Type = "ThroughAll"
pocket3.Reversed = True
doc.recompute()

fillet2 = doc.addObject("PartDesign::Fillet", "Fillet001")
body.addObject(fillet2)
fillet2.Base = (pocket3, edges_at(pocket3, [
    (177.8, 3.175, -0.794),
    (177.8, 3.175, 0.794),
    (0.794, 3.175, 184.15),
    (-0.794, 3.175, 184.15),
    (-0.794, 3.175, -184.15),
    (0.794, 3.175, -184.15),
    (-177.8, 3.175, 0.794),
    (-177.8, 3.175, -0.794),
]))
fillet2.Radius = Q("0.0625 in")

sketch6 = doc.addObject("Sketcher::SketchObject", "Sketch005")
body.addObject(sketch6)
sketch6.AttachmentSupport = (doc.XZ_Plane, [""])
sketch6.MapMode = "FlatFace"
sketch6.AttachmentOffset = App.Placement(App.Vector(0, 0, -0.25 * 25.4), App.Rotation())
sketch6.addGeometry([
    Part.Circle(App.Vector(-144.526, 17.4752, 0), App.Vector(0, 0, 1), 2.5527),
    Part.Circle(App.Vector(-144.526, 80.9752, 0), App.Vector(0, 0, 1), 2.5527),
    Part.Circle(App.Vector(-118.33225, 39.6875, 0), App.Vector(0, 0, 1), 2.5527),
    Part.Circle(App.Vector(-118.33225, -39.6875, 0), App.Vector(0, 0, 1), 2.5527),
    Part.Circle(App.Vector(118.33225, -39.6875, 0), App.Vector(0, 0, 1), 2.5527),
    Part.Circle(App.Vector(118.33225, 39.6875, 0), App.Vector(0, 0, 1), 2.5527),
    Part.Circle(App.Vector(144.526, 17.4752, 0), App.Vector(0, 0, 1), 2.5527),
    Part.Circle(App.Vector(144.526, 80.9752, 0), App.Vector(0, 0, 1), 2.5527),
], False)
sketch6.addConstraint([
    Sketcher.Constraint("Equal", 0, 1),
    Sketcher.Constraint("Equal", 1, 2),
    Sketcher.Constraint("Equal", 2, 3),
    Sketcher.Constraint("Equal", 3, 4),
    Sketcher.Constraint("Equal", 4, 5),
    Sketcher.Constraint("Equal", 5, 6),
    Sketcher.Constraint("Equal", 6, 7),
    Sketcher.Constraint("Symmetric", 2, 3, 4, 3, -1, 1),
    Sketcher.Constraint("Symmetric", 3, 3, 5, 3, -1, 1),
    Sketcher.Constraint("Symmetric", 3, 3, 4, 3, -2),
    Sketcher.Constraint("Symmetric", 0, 3, 6, 3, -2),
    Sketcher.Constraint("Symmetric", 1, 3, 7, 3, -2),
    Sketcher.Constraint("Vertical", 0, 3, 1, 3),
    Sketcher.Constraint("Diameter", 0, Q("0.201 in")),
    Sketcher.Constraint("DistanceY", 0, 3, 1, 3, Q("2.5 in")),
    Sketcher.Constraint("DistanceX", 0, 3, -1, 1, Q("5.69 in")),
    Sketcher.Constraint("DistanceY", -1, 1, 0, 3, Q("0.688 in")),
    Sketcher.Constraint("DistanceY", -1, 1, 2, 3, Q("1.5625 in")),
    Sketcher.Constraint("DistanceX", 0, 3, 2, 3, Q("1.03125 in")),
])
doc.recompute()
hole2 = doc.addObject("PartDesign::Hole", "Hole001")
body.addObject(hole2)
hole2.Profile = sketch6
hole2.ThreadType = "None"
hole2.Diameter = Q("0.201 in")
hole2.DepthType = "ThroughAll"
hole2.Reversed = True

sketch7 = doc.addObject("Sketcher::SketchObject", "Sketch006")
body.addObject(sketch7)
sketch7.AttachmentSupport = (doc.XZ_Plane, [""])
sketch7.MapMode = "FlatFace"
sketch7.AttachmentOffset = App.Placement(App.Vector(0, 0, -0.25 * 25.4), App.Rotation())
sketch7.addGeometry([
    Part.Circle(App.Vector(-138.96975, -36.5125, 0), App.Vector(0, 0, 1), 3.571875),
    Part.Circle(App.Vector(-138.96975, -14.2875, 0), App.Vector(0, 0, 1), 3.571875),
    Part.Circle(App.Vector(138.96975, -14.2875, 0), App.Vector(0, 0, 1), 3.571875),
    Part.Circle(App.Vector(138.96975, -36.5125, 0), App.Vector(0, 0, 1), 3.571875),
], False)
sketch7.addConstraint([
    Sketcher.Constraint("Equal", 0, 1),
    Sketcher.Constraint("Equal", 1, 2),
    Sketcher.Constraint("Equal", 2, 3),
    Sketcher.Constraint("Symmetric", 1, 3, 2, 3, -2),
    Sketcher.Constraint("Symmetric", 0, 3, 3, 3, -2),
    Sketcher.Constraint("Vertical", 0, 3, 1, 3),
    Sketcher.Constraint("Diameter", 0, Q("0.28125 in")),
    Sketcher.Constraint("DistanceY", 0, 3, -1, 1, Q("1.4375 in")),
    Sketcher.Constraint("DistanceY", 1, 3, -1, 1, Q("0.5625 in")),
    Sketcher.Constraint("DistanceX", 1, 3, 2, 3, Q("10.9425 in")),
])
pocket4 = doc.addObject("PartDesign::Pocket", "Pocket003")
body.addObject(pocket4)
pocket4.Profile = sketch7
pocket4.Type = "ThroughAll"
pocket4.Reversed = True

doc.recompute()
